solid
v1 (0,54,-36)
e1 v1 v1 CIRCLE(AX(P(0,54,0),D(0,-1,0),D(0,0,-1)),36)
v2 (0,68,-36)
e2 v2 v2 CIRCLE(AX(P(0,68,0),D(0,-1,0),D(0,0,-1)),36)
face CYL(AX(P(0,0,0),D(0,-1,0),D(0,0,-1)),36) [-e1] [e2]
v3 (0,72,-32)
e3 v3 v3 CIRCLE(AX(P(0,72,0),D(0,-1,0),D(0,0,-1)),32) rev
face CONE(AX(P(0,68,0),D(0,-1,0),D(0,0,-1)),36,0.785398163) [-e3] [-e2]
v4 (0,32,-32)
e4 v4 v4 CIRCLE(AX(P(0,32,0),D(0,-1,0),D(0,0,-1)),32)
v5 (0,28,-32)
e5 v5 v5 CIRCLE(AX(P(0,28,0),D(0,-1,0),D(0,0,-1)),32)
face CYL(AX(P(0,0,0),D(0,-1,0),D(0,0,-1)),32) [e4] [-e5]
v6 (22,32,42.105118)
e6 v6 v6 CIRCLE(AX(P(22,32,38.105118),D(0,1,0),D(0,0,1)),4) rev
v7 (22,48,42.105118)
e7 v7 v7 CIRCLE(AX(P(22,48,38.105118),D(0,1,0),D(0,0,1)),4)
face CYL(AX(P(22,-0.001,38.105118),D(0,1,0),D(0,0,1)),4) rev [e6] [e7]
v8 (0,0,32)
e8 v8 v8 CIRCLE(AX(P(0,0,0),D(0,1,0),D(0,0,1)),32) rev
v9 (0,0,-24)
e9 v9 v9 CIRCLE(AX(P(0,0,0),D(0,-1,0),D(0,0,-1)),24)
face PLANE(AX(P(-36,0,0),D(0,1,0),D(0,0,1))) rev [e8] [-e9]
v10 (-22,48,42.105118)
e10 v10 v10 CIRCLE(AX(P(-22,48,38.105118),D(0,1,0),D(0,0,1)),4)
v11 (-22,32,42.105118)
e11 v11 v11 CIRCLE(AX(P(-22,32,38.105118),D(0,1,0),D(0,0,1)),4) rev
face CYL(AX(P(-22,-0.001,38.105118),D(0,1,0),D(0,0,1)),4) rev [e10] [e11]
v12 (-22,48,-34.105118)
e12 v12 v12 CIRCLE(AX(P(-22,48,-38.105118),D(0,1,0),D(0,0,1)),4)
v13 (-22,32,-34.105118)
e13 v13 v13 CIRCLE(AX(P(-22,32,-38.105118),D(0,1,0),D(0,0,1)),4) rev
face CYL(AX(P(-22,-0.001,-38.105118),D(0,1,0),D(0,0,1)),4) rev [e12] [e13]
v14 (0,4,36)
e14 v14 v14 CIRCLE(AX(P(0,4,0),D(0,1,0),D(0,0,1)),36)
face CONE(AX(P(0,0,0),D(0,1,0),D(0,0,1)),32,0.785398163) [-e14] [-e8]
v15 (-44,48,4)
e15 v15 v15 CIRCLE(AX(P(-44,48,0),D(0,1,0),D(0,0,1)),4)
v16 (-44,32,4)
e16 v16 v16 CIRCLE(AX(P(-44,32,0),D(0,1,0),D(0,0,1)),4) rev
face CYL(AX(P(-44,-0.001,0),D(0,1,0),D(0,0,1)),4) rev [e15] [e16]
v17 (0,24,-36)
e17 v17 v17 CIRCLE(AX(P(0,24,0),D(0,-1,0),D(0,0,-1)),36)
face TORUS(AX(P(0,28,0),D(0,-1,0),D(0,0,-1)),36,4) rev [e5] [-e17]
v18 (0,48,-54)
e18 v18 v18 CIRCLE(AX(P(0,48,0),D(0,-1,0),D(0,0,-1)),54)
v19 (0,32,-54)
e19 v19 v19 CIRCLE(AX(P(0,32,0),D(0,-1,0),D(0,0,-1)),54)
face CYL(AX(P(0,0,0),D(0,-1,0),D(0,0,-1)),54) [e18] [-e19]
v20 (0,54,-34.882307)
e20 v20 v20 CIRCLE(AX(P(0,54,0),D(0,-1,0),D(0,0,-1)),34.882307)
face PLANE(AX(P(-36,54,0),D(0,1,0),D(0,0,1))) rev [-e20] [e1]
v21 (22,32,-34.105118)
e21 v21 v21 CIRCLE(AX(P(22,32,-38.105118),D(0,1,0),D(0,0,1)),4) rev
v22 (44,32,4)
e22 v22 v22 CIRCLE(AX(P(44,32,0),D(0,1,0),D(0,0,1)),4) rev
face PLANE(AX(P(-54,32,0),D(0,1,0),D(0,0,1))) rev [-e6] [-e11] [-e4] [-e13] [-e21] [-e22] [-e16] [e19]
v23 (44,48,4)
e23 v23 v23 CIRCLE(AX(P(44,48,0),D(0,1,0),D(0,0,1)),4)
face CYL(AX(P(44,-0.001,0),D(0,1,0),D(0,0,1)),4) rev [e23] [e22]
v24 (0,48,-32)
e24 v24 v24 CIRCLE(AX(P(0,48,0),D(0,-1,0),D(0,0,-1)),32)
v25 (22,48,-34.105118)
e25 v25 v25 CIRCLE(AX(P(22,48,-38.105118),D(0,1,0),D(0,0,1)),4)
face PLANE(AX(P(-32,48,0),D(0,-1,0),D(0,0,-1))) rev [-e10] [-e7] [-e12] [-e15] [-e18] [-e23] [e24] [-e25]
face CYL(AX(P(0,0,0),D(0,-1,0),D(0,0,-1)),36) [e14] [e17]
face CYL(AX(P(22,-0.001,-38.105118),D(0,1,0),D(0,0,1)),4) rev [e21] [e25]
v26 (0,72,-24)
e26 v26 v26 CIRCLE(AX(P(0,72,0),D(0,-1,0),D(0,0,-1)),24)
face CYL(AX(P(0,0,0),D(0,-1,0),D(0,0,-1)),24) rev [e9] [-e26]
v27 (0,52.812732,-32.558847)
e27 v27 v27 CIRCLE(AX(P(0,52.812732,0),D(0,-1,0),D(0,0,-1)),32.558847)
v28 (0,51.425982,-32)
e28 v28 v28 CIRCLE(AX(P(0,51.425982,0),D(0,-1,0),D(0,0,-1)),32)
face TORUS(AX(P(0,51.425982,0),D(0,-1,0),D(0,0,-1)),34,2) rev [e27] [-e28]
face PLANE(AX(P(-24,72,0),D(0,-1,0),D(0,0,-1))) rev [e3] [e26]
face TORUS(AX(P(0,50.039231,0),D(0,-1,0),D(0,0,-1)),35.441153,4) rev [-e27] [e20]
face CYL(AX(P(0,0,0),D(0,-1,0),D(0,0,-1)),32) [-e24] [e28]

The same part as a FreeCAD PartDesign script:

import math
import FreeCAD as App
import Part
import Sketcher


def edges_at(feature, points):
    """Names of the edges that pass closest to the given points."""
    edges = feature.Shape.Edges
    near = lambda p: min(range(len(edges)), key=lambda i: edges[i].distToShape(Part.Vertex(*p))[0])
    return sorted({f"Edge{near(p) + 1}" for p in points})

doc = App.newDocument("Part")
body = doc.addObject("PartDesign::Body", "Body")

sketch1 = body.newObject("Sketcher::SketchObject", "Sketch")
sketch1.AttachmentSupport = (doc.getObject("XY_Plane"), [""])
sketch1.MapMode = "FlatFace"
sketch1.addGeometry(Part.LineSegment(App.Vector(-24, 0, 0), App.Vector(-24, 72, 0)), False)
sketch1.addGeometry(Part.LineSegment(App.Vector(-24, 72, 0), App.Vector(-36, 72, 0)), False)
sketch1.addGeometry(Part.LineSegment(App.Vector(-36, 72, 0), App.Vector(-36, 54, 0)), False)
sketch1.addGeometry(Part.LineSegment(App.Vector(-36, 54, 0), App.Vector(-34.9, 54, 0)), False)
sketch1.addGeometry(Part.ArcOfCircle(Part.Circle(App.Vector(-35.4, 50, 0), App.Vector(0, 0, 1), 4), math.radians(44), math.radians(82)), False)
sketch1.addGeometry(Part.ArcOfCircle(Part.Circle(App.Vector(-34, 51.4, 0), App.Vector(0, 0, 1), 2), math.radians(0), math.radians(44)), False)
sketch1.addGeometry(Part.LineSegment(App.Vector(-32, 51.4, 0), App.Vector(-32, 48, 0)), False)
sketch1.addGeometry(Part.LineSegment(App.Vector(-32, 48, 0), App.Vector(-54, 48, 0)), False)
sketch1.addGeometry(Part.LineSegment(App.Vector(-54, 48, 0), App.Vector(-54, 32, 0)), False)
sketch1.addGeometry(Part.LineSegment(App.Vector(-54, 32, 0), App.Vector(-32, 32, 0)), False)
sketch1.addGeometry(Part.LineSegment(App.Vector(-32, 32, 0), App.Vector(-32, 28, 0)), False)
sketch1.addGeometry(Part.ArcOfCircle(Part.Circle(App.Vector(-36, 28, 0), App.Vector(0, 0, 1), 4), math.radians(-90), math.radians(0)), False)
sketch1.addGeometry(Part.LineSegment(App.Vector(-36, 24, 0), App.Vector(-36, 0, 0)), False)
sketch1.addGeometry(Part.LineSegment(App.Vector(-36, 0, 0), App.Vector(-24, 0, 0)), False)
sketch1.addConstraint(Sketcher.Constraint("Coincident", 0, 2, 1, 1))
sketch1.addConstraint(Sketcher.Constraint("Coincident", 1, 2, 2, 1))
sketch1.addConstraint(Sketcher.Constraint("Coincident", 2, 2, 3, 1))
sketch1.addConstraint(Sketcher.Constraint("Coincident", 3, 2, 4, 2))
sketch1.addConstraint(Sketcher.Constraint("Tangent", 4, 1, 5, 2))
sketch1.addConstraint(Sketcher.Constraint("Tangent", 5, 1, 6, 1))
sketch1.addConstraint(Sketcher.Constraint("Coincident", 6, 2, 7, 1))
sketch1.addConstraint(Sketcher.Constraint("Coincident", 7, 2, 8, 1))
sketch1.addConstraint(Sketcher.Constraint("Coincident", 8, 2, 9, 1))
sketch1.addConstraint(Sketcher.Constraint("Coincident", 9, 2, 10, 1))
sketch1.addConstraint(Sketcher.Constraint("Tangent", 10, 2, 11, 2))
sketch1.addConstraint(Sketcher.Constraint("Coincident", 11, 1, 12, 1))
sketch1.addConstraint(Sketcher.Constraint("Coincident", 12, 2, 13, 1))
sketch1.addConstraint(Sketcher.Constraint("Coincident", 13, 2, 0, 1))
sketch1.addConstraint(Sketcher.Constraint("Vertical", 0))
sketch1.addConstraint(Sketcher.Constraint("Horizontal", 1))
sketch1.addConstraint(Sketcher.Constraint("Vertical", 2))
sketch1.addConstraint(Sketcher.Constraint("Horizontal", 3))
sketch1.addConstraint(Sketcher.Constraint("Vertical", 6))
sketch1.addConstraint(Sketcher.Constraint("Horizontal", 7))
sketch1.addConstraint(Sketcher.Constraint("Vertical", 8))
sketch1.addConstraint(Sketcher.Constraint("Horizontal", 9))
sketch1.addConstraint(Sketcher.Constraint("Vertical", 10))
sketch1.addConstraint(Sketcher.Constraint("Vertical", 12))
sketch1.addConstraint(Sketcher.Constraint("Horizontal", 13))
sketch1.addConstraint(Sketcher.Constraint("Equal", 4, 11))
sketch1.addConstraint(Sketcher.Constraint("PointOnObject", 12, 2, -1))
sketch1.addConstraint(Sketcher.Constraint("Vertical", 11, 3, 1, 2))
sketch1.addConstraint(Sketcher.Constraint("Vertical", 6, 2, 9, 2))
sketch1.addConstraint(Sketcher.Constraint("Vertical", 2, 2, 11, 1))
sketch1.addConstraint(Sketcher.Constraint("Radius", 4, 4.0))
sketch1.addConstraint(Sketcher.Constraint("Radius", 5, 2.0))
sketch1.addConstraint(Sketcher.Constraint("DistanceX", 1, 2, 1, 1, 12.0))
sketch1.addConstraint(Sketcher.Constraint("DistanceX", 7, 2, 7, 1, 22.0))
sketch1.addConstraint(Sketcher.Constraint("DistanceY", 0, 1, 0, 2, 72.0))
sketch1.addConstraint(Sketcher.Constraint("DistanceY", 2, 2, 2, 1, 18.0))
sketch1.addConstraint(Sketcher.Constraint("DistanceY", 8, 2, 8, 1, 16.0))
sketch1.addConstraint(Sketcher.Constraint("DistanceY", 10, 2, 10, 1, 4.0))
sketch1.addConstraint(Sketcher.Constraint("DistanceY", 12, 2, 12, 1, 24.0))
sketch1.addConstraint(Sketcher.Constraint("DistanceX", 5, 3, -1, 1, 34.0))
sketch1.addConstraint(Sketcher.Constraint("DistanceY", 6, 2, 6, 1, 3.425982))
sketch1.addConstraint(Sketcher.Constraint("DistanceY", 4, 3, 4, 1, 2.773501))
revolution = body.newObject("PartDesign::Revolution", "Revolution")
revolution.Profile = sketch1
revolution.ReferenceAxis = (sketch1, ["V_Axis"])
revolution.Angle = 360
doc.recompute()

chamfer = body.newObject("PartDesign::Chamfer", "Chamfer")
chamfer.Base = (revolution, edges_at(revolution, [(0, 0, 36), (0, 72, 36)]))
chamfer.Size = 4

sketch2 = body.newObject("Sketcher::SketchObject", "Sketch001")
sketch2.AttachmentSupport = (doc.getObject("XZ_Plane"), [""])
sketch2.MapMode = "FlatFace"
sketch2.AttachmentOffset = App.Placement(App.Vector(0, 0, -48), App.Rotation())
sketch2.addGeometry(Part.Circle(App.Vector(44, 0, 0), App.Vector(0, 0, 1), 4), False)
sketch2.addConstraint(Sketcher.Constraint("PointOnObject", 0, 3, -1))
sketch2.addConstraint(Sketcher.Constraint("Diameter", 0, 8.0))
sketch2.addConstraint(Sketcher.Constraint("DistanceX", -1, 1, 0, 3, 44.0))
pocket1 = body.newObject("PartDesign::Pocket", "Pocket")
pocket1.Profile = sketch2
pocket1.Type = "UpToFirst"
pocket1.Reversed = True

sketch3 = body.newObject("Sketcher::SketchObject", "Sketch002")
sketch3.AttachmentSupport = (doc.getObject("XZ_Plane"), [""])
sketch3.MapMode = "FlatFace"
sketch3.AttachmentOffset = App.Placement(App.Vector(0, 0, -48), App.Rotation())
sketch3.addGeometry(Part.Circle(App.Vector(22, 38.1, 0), App.Vector(0, 0, 1), 4), False)
sketch3.addConstraint(Sketcher.Constraint("Diameter", 0, 8.0))
sketch3.addConstraint(Sketcher.Constraint("DistanceX", -1, 1, 0, 3, 22.0))
sketch3.addConstraint(Sketcher.Constraint("DistanceY", -1, 1, 0, 3, 38.105118))
pocket2 = body.newObject("PartDesign::Pocket", "Pocket001")
pocket2.Profile = sketch3
pocket2.Type = "UpToFirst"
pocket2.Reversed = True

sketch4 = body.newObject("Sketcher::SketchObject", "Sketch003")
sketch4.AttachmentSupport = (doc.getObject("XZ_Plane"), [""])
sketch4.MapMode = "FlatFace"
sketch4.AttachmentOffset = App.Placement(App.Vector(0, 0, -48), App.Rotation())
sketch4.addGeometry(Part.Circle(App.Vector(-22, 38.1, 0), App.Vector(0, 0, 1), 4), False)
sketch4.addConstraint(Sketcher.Constraint("Diameter", 0, 8.0))
sketch4.addConstraint(Sketcher.Constraint("DistanceX", 0, 3, -1, 1, 22.0))
sketch4.addConstraint(Sketcher.Constraint("DistanceY", -1, 1, 0, 3, 38.105118))
pocket3 = body.newObject("PartDesign::Pocket", "Pocket002")
pocket3.Profile = sketch4
pocket3.Type = "UpToFirst"
pocket3.Reversed = True

sketch5 = body.newObject("Sketcher::SketchObject", "Sketch004")
sketch5.AttachmentSupport = (doc.getObject("XZ_Plane"), [""])
sketch5.MapMode = "FlatFace"
sketch5.AttachmentOffset = App.Placement(App.Vector(0, 0, -48), App.Rotation())
sketch5.addGeometry(Part.Circle(App.Vector(-44, 0, 0), App.Vector(0, 0, 1), 4), False)
sketch5.addConstraint(Sketcher.Constraint("PointOnObject", 0, 3, -1))
sketch5.addConstraint(Sketcher.Constraint("Diameter", 0, 8.0))
sketch5.addConstraint(Sketcher.Constraint("DistanceX", 0, 3, -1, 1, 44.0))
pocket4 = body.newObject("PartDesign::Pocket", "Pocket003")
pocket4.Profile = sketch5
pocket4.Type = "UpToFirst"
pocket4.Reversed = True

sketch6 = body.newObject("Sketcher::SketchObject", "Sketch005")
sketch6.AttachmentSupport = (doc.getObject("XZ_Plane"), [""])
sketch6.MapMode = "FlatFace"
sketch6.AttachmentOffset = App.Placement(App.Vector(0, 0, -48), App.Rotation())
sketch6.addGeometry(Part.Circle(App.Vector(-22, -38.1, 0), App.Vector(0, 0, 1), 4), False)
sketch6.addConstraint(Sketcher.Constraint("Diameter", 0, 8.0))
sketch6.addConstraint(Sketcher.Constraint("DistanceX", 0, 3, -1, 1, 22.0))
sketch6.addConstraint(Sketcher.Constraint("DistanceY", 0, 3, -1, 1, 38.105118))
pocket5 = body.newObject("PartDesign::Pocket", "Pocket004")
pocket5.Profile = sketch6
pocket5.Type = "UpToFirst"
pocket5.Reversed = True

sketch7 = body.newObject("Sketcher::SketchObject", "Sketch006")
sketch7.AttachmentSupport = (doc.getObject("XZ_Plane"), [""])
sketch7.MapMode = "FlatFace"
sketch7.AttachmentOffset = App.Placement(App.Vector(0, 0, -48), App.Rotation())
sketch7.addGeometry(Part.Circle(App.Vector(22, -38.1, 0), App.Vector(0, 0, 1), 4), False)
sketch7.addConstraint(Sketcher.Constraint("Diameter", 0, 8.0))
sketch7.addConstraint(Sketcher.Constraint("DistanceX", -1, 1, 0, 3, 22.0))
sketch7.addConstraint(Sketcher.Constraint("DistanceY", 0, 3, -1, 1, 38.105118))
pocket6 = body.newObject("PartDesign::Pocket", "Pocket005")
pocket6.Profile = sketch7
pocket6.Type = "UpToFirst"
pocket6.Reversed = True

doc.recompute()
